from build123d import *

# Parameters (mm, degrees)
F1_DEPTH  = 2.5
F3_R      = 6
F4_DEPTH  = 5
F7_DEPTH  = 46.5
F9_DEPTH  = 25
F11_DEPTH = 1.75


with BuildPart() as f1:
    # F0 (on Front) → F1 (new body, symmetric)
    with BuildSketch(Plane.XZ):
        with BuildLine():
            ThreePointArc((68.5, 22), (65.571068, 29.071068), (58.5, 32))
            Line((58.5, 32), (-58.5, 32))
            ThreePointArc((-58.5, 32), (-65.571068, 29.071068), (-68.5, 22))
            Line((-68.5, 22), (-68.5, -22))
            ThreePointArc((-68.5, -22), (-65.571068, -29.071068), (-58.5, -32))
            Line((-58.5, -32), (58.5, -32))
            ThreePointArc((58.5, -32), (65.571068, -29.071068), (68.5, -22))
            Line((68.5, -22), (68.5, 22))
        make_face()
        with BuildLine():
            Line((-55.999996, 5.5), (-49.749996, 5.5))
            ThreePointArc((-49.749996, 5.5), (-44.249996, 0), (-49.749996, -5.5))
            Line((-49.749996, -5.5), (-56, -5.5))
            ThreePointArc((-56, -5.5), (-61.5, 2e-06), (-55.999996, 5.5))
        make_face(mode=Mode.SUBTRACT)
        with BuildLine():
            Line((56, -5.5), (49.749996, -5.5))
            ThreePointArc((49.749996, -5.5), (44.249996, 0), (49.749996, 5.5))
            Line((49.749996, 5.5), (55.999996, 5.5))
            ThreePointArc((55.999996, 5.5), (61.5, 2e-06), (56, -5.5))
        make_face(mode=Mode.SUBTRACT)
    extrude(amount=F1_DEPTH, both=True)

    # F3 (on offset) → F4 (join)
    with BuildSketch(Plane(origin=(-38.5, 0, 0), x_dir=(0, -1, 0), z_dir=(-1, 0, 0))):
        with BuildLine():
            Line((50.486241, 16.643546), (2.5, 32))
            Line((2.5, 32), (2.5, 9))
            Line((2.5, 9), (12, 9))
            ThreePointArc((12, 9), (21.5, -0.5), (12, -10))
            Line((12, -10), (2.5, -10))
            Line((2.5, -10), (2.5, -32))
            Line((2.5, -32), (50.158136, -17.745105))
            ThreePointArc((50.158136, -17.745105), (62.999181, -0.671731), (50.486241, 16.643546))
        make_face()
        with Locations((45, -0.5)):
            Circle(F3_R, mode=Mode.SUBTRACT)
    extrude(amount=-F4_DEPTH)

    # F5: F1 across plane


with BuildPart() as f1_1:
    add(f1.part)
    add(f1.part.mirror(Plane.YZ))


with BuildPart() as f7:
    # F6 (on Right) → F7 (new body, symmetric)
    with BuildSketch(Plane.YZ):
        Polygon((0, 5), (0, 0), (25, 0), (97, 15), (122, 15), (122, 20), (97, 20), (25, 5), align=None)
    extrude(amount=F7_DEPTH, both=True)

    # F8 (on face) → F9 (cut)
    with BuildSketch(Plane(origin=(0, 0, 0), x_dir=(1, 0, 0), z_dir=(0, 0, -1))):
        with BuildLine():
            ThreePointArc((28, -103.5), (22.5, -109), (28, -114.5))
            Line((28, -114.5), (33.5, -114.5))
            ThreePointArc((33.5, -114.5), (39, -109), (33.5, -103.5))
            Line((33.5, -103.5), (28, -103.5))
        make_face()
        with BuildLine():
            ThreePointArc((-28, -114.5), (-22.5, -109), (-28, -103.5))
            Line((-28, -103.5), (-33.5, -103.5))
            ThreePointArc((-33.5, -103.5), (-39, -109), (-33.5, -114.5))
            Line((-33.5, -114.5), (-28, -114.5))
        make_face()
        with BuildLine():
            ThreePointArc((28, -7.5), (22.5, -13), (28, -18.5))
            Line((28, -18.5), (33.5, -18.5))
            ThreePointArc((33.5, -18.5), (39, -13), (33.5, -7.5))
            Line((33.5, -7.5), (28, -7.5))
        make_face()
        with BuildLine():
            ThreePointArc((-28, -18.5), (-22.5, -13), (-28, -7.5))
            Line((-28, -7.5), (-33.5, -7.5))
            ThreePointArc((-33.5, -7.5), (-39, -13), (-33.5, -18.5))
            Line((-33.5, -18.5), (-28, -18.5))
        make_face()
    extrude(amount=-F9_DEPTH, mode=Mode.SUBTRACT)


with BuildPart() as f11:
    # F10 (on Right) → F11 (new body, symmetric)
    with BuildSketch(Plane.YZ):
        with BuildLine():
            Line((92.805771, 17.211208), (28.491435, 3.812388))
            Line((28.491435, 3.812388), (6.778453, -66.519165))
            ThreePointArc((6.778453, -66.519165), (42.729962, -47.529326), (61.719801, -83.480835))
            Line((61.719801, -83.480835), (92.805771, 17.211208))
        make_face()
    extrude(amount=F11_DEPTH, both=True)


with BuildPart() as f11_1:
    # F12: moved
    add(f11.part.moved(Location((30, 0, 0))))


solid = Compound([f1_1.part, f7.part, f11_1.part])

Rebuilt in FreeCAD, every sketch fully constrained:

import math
import FreeCAD as App
import Part
import Sketcher

V = App.Vector


def add_polygon(sketch, points):
    """Adds a closed chain of lines whose ends are joined by coincident constraints."""
    first, n = sketch.GeometryCount, len(points)
    for a, b in zip(points, points[1:] + points[:1]):
        sketch.addGeometry(Part.LineSegment(App.Vector(*a, 0), App.Vector(*b, 0)), False)
    for i in range(n):
        sketch.addConstraint(Sketcher.Constraint("Coincident", first + i, 2, first + (i + 1) % n, 1))

doc = App.newDocument("Part")
params = doc.addObject("Spreadsheet::Sheet", "Params")
for row, (alias, value) in enumerate([
    ("sketch1_radius", "9.999999 mm"),
    ("sketch1_radius2", "5.5 mm"),
    ("sketch1_width", "117 mm"),
    ("sketch1_height", "44 mm"),
    ("sketch1_width2", "6.25 mm"),
    ("pad1_length", "5 mm"),
    ("sketch2_diameter", "12 mm"),
    ("sketch2_radius", "18 mm"),
    ("sketch2_radius2", "9.5 mm"),
    ("sketch2_height", "23 mm"),
    ("sketch2_height2", "22 mm"),
    ("pad2_length", "5 mm"),
    ("sketch3_width", "25 mm"),
    ("sketch3_height", "5 mm"),
    ("pad3_length", "93 mm"),
    ("sketch4_radius", "5.5 mm"),
    ("sketch4_width", "5.5 mm"),
    ("pocket1_length", "25 mm"),
    ("sketch5_radius", "28.75 mm"),
    ("pad4_length", "3.5 mm"),
], start=1):
    params.set(f"A{row}", alias)
    params.set(f"B{row}", "=" + value)
    params.setAlias(f"B{row}", alias)

body = doc.addObject("PartDesign::Body", "Body")

# Sketch on XZ plane
sketch1 = body.newObject("Sketcher::SketchObject", "Sketch")
sketch1.AttachmentSupport = (doc.getObject("XZ_Plane"), [""])
sketch1.MapMode = "FlatFace"
sketch1.addGeometry(Part.ArcOfCircle(Part.Circle(V(59, 22, 0), V(0, 0, 1), 10), math.radians(0), math.radians(90)), False)
sketch1.addGeometry(Part.LineSegment(V(58, 32, 0), V(-58, 32, 0)), False)
sketch1.addGeometry(Part.ArcOfCircle(Part.Circle(V(-59, 22, 0), V(0, 0, 1), 10), math.radians(90), math.radians(180)), False)
sketch1.addGeometry(Part.LineSegment(V(-68, 22, 0), V(-68, -22, 0)), False)
sketch1.addGeometry(Part.ArcOfCircle(Part.Circle(V(-59, -22, 0), V(0, 0, 1), 10), math.radians(180), math.radians(270)), False)
sketch1.addGeometry(Part.LineSegment(V(-58, -32, 0), V(58, -32, 0)), False)
sketch1.addGeometry(Part.ArcOfCircle(Part.Circle(V(59, -22, 0), V(0, 0, 1), 10), math.radians(-90), math.radians(0)), False)
sketch1.addGeometry(Part.LineSegment(V(68, -22, 0), V(68, 22, 0)), False)
sketch1.addGeometry(Part.ArcOfCircle(Part.Circle(V(-56, 0, 0), V(0, 0, 1), 6), math.radians(90), math.radians(270)), False)
sketch1.addGeometry(Part.LineSegment(V(-56, 6, 0), V(-50, 6, 0)), False)
sketch1.addGeometry(Part.ArcOfCircle(Part.Circle(V(-50, 0, 0), V(0, 0, 1), 6), math.radians(-90), math.radians(90)), False)
sketch1.addGeometry(Part.LineSegment(V(-50, -6, 0), V(-56, -6, 0)), False)
sketch1.addGeometry(Part.ArcOfCircle(Part.Circle(V(56, 0, 0), V(0, 0, 1), 6), math.radians(-90), math.radians(90)), False)
sketch1.addGeometry(Part.LineSegment(V(56, -6, 0), V(50, -6, 0)), False)
sketch1.addGeometry(Part.ArcOfCircle(Part.Circle(V(50, 0, 0), V(0, 0, 1), 6), math.radians(90), math.radians(270)), False)
sketch1.addGeometry(Part.LineSegment(V(50, 6, 0), V(56, 6, 0)), False)
sketch1.addConstraint(Sketcher.Constraint("Tangent", 0, 2, 1, 1))
sketch1.addConstraint(Sketcher.Constraint("Tangent", 1, 2, 2, 1))
sketch1.addConstraint(Sketcher.Constraint("Tangent", 2, 2, 3, 1))
sketch1.addConstraint(Sketcher.Constraint("Tangent", 3, 2, 4, 1))
sketch1.addConstraint(Sketcher.Constraint("Tangent", 4, 2, 5, 1))
sketch1.addConstraint(Sketcher.Constraint("Tangent", 5, 2, 6, 1))
sketch1.addConstraint(Sketcher.Constraint("Tangent", 6, 2, 7, 1))
sketch1.addConstraint(Sketcher.Constraint("Tangent", 7, 2, 0, 1))
sketch1.addConstraint(Sketcher.Constraint("Tangent", 8, 1, 9, 1))
sketch1.addConstraint(Sketcher.Constraint("Tangent", 9, 2, 10, 2))
sketch1.addConstraint(Sketcher.Constraint("Tangent", 10, 1, 11, 1))
sketch1.addConstraint(Sketcher.Constraint("Tangent", 11, 2, 8, 2))
sketch1.addConstraint(Sketcher.Constraint("Tangent", 12, 1, 13, 1))
sketch1.addConstraint(Sketcher.Constraint("Tangent", 13, 2, 14, 2))
sketch1.addConstraint(Sketcher.Constraint("Tangent", 14, 1, 15, 1))
sketch1.addConstraint(Sketcher.Constraint("Tangent", 15, 2, 12, 2))
sketch1.addConstraint(Sketcher.Constraint("Horizontal", 1))
sketch1.addConstraint(Sketcher.Constraint("Vertical", 3))
sketch1.addConstraint(Sketcher.Constraint("Horizontal", 5))
sketch1.addConstraint(Sketcher.Constraint("Vertical", 7))
sketch1.addConstraint(Sketcher.Constraint("Horizontal", 9))
sketch1.addConstraint(Sketcher.Constraint("Horizontal", 11))
sketch1.addConstraint(Sketcher.Constraint("Horizontal", 13))
sketch1.addConstraint(Sketcher.Constraint("Horizontal", 15))
sketch1.addConstraint(Sketcher.Constraint("Equal", 0, 2))
sketch1.addConstraint(Sketcher.Constraint("Equal", 2, 4))
sketch1.addConstraint(Sketcher.Constraint("Equal", 4, 6))
sketch1.addConstraint(Sketcher.Constraint("Equal", 10, 12))
sketch1.addConstraint(Sketcher.Constraint("Symmetric", 0, 3, 4, 3, -1, 1))
sketch1.addConstraint(Sketcher.Constraint("Symmetric", 8, 3, 12, 3, -1, 1))
sketch1.addConstraint(Sketcher.Constraint("Symmetric", 10, 3, 14, 3, -2))
sketch1.addConstraint(Sketcher.Constraint("Radius", 0, 9.999999))
sketch1.addConstraint(Sketcher.Constraint("Radius", 8, 5.5))
sketch1.addConstraint(Sketcher.Constraint("DistanceX", 1, 2, 1, 1, 117.0))
sketch1.addConstraint(Sketcher.Constraint("DistanceY", 3, 2, 3, 1, 44.0))
sketch1.addConstraint(Sketcher.Constraint("DistanceX", 8, 3, -1, 1, 56.0))
sketch1.addConstraint(Sketcher.Constraint("DistanceX", 9, 1, 9, 2, 6.25))
sketch1.setExpression("Constraints[31]", "Params.sketch1_radius")
sketch1.setExpression("Constraints[32]", "Params.sketch1_radius2")
sketch1.setExpression("Constraints[33]", "Params.sketch1_width")
sketch1.setExpression("Constraints[34]", "Params.sketch1_height")
sketch1.setExpression("Constraints[36]", "Params.sketch1_width2")
pad1 = body.newObject("PartDesign::Pad", "Pad")
pad1.Profile = sketch1
pad1.setExpression("Length", "Params.pad1_length")
pad1.Midplane = True

# Sketch on YZ plane
sketch2 = body.newObject("Sketcher::SketchObject", "Sketch001")
sketch2.AttachmentSupport = (doc.getObject("YZ_Plane"), [""])
sketch2.MapMode = "FlatFace"
sketch2.AttachmentOffset = App.Placement(V(0, 0, -38.5), App.Rotation())
sketch2.addGeometry(Part.LineSegment(V(-50, 17, 0), V(-2, 32, 0)), False)
sketch2.addGeometry(Part.LineSegment(V(-2, 32, 0), V(-2, 9, 0)), False)
sketch2.addGeometry(Part.LineSegment(V(-2, 9, 0), V(-12, 9, 0)), False)
sketch2.addGeometry(Part.ArcOfCircle(Part.Circle(V(-12, 0, 0), V(0, 0, 1), 10), math.radians(90), math.radians(270)), False)
sketch2.addGeometry(Part.LineSegment(V(-12, -10, 0), V(-2, -10, 0)), False)
sketch2.addGeometry(Part.LineSegment(V(-2, -10, 0), V(-2, -32, 0)), False)
sketch2.addGeometry(Part.LineSegment(V(-2, -32, 0), V(-50, -18, 0)), False)
sketch2.addGeometry(Part.ArcOfCircle(Part.Circle(V(-45, -1, 0), V(0, 0, 1), 18), math.radians(108), math.radians(253)), False)
sketch2.addGeometry(Part.Circle(V(-45, 0, 0), V(0, 0, 1), 6), False)
sketch2.addConstraint(Sketcher.Constraint("Coincident", 0, 2, 1, 1))
sketch2.addConstraint(Sketcher.Constraint("Coincident", 1, 2, 2, 1))
sketch2.addConstraint(Sketcher.Constraint("Tangent", 2, 2, 3, 1))
sketch2.addConstraint(Sketcher.Constraint("Tangent", 3, 2, 4, 1))
sketch2.addConstraint(Sketcher.Constraint("Coincident", 4, 2, 5, 1))
sketch2.addConstraint(Sketcher.Constraint("Coincident", 5, 2, 6, 1))
sketch2.addConstraint(Sketcher.Constraint("Tangent", 6, 2, 7, 2))
sketch2.addConstraint(Sketcher.Constraint("Tangent", 7, 1, 0, 1))
sketch2.addConstraint(Sketcher.Constraint("Vertical", 1))
sketch2.addConstraint(Sketcher.Constraint("Horizontal", 2))
sketch2.addConstraint(Sketcher.Constraint("Horizontal", 4))
sketch2.addConstraint(Sketcher.Constraint("Vertical", 5))
sketch2.addConstraint(Sketcher.Constraint("Coincident", 8, 3, 7, 3))
sketch2.addConstraint(Sketcher.Constraint("Symmetric", 0, 2, 5, 2, -1))
sketch2.addConstraint(Sketcher.Constraint("Horizontal", 3, 3, 7, 3))
sketch2.addConstraint(Sketcher.Constraint("Diameter", 8, 12.0))
sketch2.addConstraint(Sketcher.Constraint("Radius", 7, 18.0))
sketch2.addConstraint(Sketcher.Constraint("Radius", 3, 9.5))
sketch2.addConstraint(Sketcher.Constraint("DistanceY", 1, 2, 1, 1, 23.0))
sketch2.addConstraint(Sketcher.Constraint("DistanceY", 5, 2, 5, 1, 22.0))
sketch2.addConstraint(Sketcher.Constraint("DistanceX", 2, 2, 2, 1, 9.5))
sketch2.addConstraint(Sketcher.Constraint("DistanceX", 3, 3, -1, 1, 12.0))
sketch2.addConstraint(Sketcher.Constraint("DistanceX", 7, 3, -1, 1, 45.0))
sketch2.setExpression("Constraints[15]", "Params.sketch2_diameter")
sketch2.setExpression("Constraints[16]", "Params.sketch2_radius")
sketch2.setExpression("Constraints[17]", "Params.sketch2_radius2")
sketch2.setExpression("Constraints[18]", "Params.sketch2_height")
sketch2.setExpression("Constraints[19]", "Params.sketch2_height2")
pad2 = body.newObject("PartDesign::Pad", "Pad001")
pad2.Profile = sketch2
pad2.setExpression("Length", "Params.pad2_length")
body2 = doc.addObject("PartDesign::Body", "Body001")
doc.recompute()

body2.BaseFeature = body
doc.recompute()

mirroring = doc.addObject("Part::Mirroring", "Mirroring")
mirroring.Source = body
mirroring.Base = V(0, 0, 0)
mirroring.Normal = V(1, 0, 0)
body3 = doc.addObject("PartDesign::Body", "Body002")
body3.BaseFeature = mirroring
boolean = body2.newObject("PartDesign::Boolean", "Boolean")
boolean.Type = "Fuse"
boolean.addObjects([body3])
doc.recompute()
body4 = doc.addObject("PartDesign::Body", "Body003")

# Sketch on YZ plane
sketch3 = body4.newObject("Sketcher::SketchObject", "Sketch002")
sketch3.AttachmentSupport = (doc.getObject("YZ_Plane003"), [""])
sketch3.MapMode = "FlatFace"
add_polygon(sketch3, [(0, 5), (0, 0), (25, 0), (97, 15), (122, 15), (122, 20), (97, 20), (25, 5)])  # lines 0-7
sketch3.addConstraint(Sketcher.Constraint("Vertical", 0))
sketch3.addConstraint(Sketcher.Constraint("Horizontal", 1))
sketch3.addConstraint(Sketcher.Constraint("Horizontal", 3))
sketch3.addConstraint(Sketcher.Constraint("Vertical", 4))
sketch3.addConstraint(Sketcher.Constraint("Horizontal", 5))
sketch3.addConstraint(Sketcher.Constraint("Horizontal", 7))
sketch3.addConstraint(Sketcher.Constraint("Coincident", 0, 2, -1, 1))
sketch3.addConstraint(Sketcher.Constraint("Parallel", 2, 6))
sketch3.addConstraint(Sketcher.Constraint("Vertical", 2, 2, 5, 2))
sketch3.addConstraint(Sketcher.Constraint("Vertical", 1, 2, 6, 2))
sketch3.addConstraint(Sketcher.Constraint("Equal", 1, 3))
sketch3.addConstraint(Sketcher.Constraint("DistanceX", 1, 1, 1, 2, 25.0))
sketch3.addConstraint(Sketcher.Constraint("DistanceY", 0, 2, 0, 1, 5.0))
sketch3.addConstraint(Sketcher.Constraint("DistanceX", -1, 1, 2, 2, 97.0))
sketch3.addConstraint(Sketcher.Constraint("DistanceY", -1, 1, 2, 2, 15.0))
sketch3.setExpression("Constraints[19]", "Params.sketch3_width")
sketch3.setExpression("Constraints[20]", "Params.sketch3_height")
pad3 = body4.newObject("PartDesign::Pad", "Pad002")
pad3.Profile = sketch3
pad3.setExpression("Length", "Params.pad3_length")
pad3.Midplane = True

# Sketch on XY plane
sketch4 = body4.newObject("Sketcher::SketchObject", "Sketch003")
sketch4.AttachmentSupport = (doc.getObject("XY_Plane003"), [""])
sketch4.MapMode = "FlatFace"
sketch4.addGeometry(Part.ArcOfCircle(Part.Circle(V(28, 109, 0), V(0, 0, 1), 6), math.radians(90), math.radians(270)), False)
sketch4.addGeometry(Part.LineSegment(V(28, 114, 0), V(34, 114, 0)), False)
sketch4.addGeometry(Part.ArcOfCircle(Part.Circle(V(34, 109, 0), V(0, 0, 1), 6), math.radians(-90), math.radians(90)), False)
sketch4.addGeometry(Part.LineSegment(V(34, 104, 0), V(28, 104, 0)), False)
sketch4.addGeometry(Part.ArcOfCircle(Part.Circle(V(-28, 109, 0), V(0, 0, 1), 6), math.radians(-90), math.radians(90)), False)
sketch4.addGeometry(Part.LineSegment(V(-28, 104, 0), V(-34, 104, 0)), False)
sketch4.addGeometry(Part.ArcOfCircle(Part.Circle(V(-34, 109, 0), V(0, 0, 1), 6), math.radians(90), math.radians(270)), False)
sketch4.addGeometry(Part.LineSegment(V(-34, 114, 0), V(-28, 114, 0)), False)
sketch4.addGeometry(Part.ArcOfCircle(Part.Circle(V(28, 13, 0), V(0, 0, 1), 6), math.radians(90), math.radians(270)), False)
sketch4.addGeometry(Part.LineSegment(V(28, 18, 0), V(34, 18, 0)), False)
sketch4.addGeometry(Part.ArcOfCircle(Part.Circle(V(34, 13, 0), V(0, 0, 1), 6), math.radians(-90), math.radians(90)), False)
sketch4.addGeometry(Part.LineSegment(V(34, 8, 0), V(28, 8, 0)), False)
sketch4.addGeometry(Part.ArcOfCircle(Part.Circle(V(-28, 13, 0), V(0, 0, 1), 6), math.radians(-90), math.radians(90)), False)
sketch4.addGeometry(Part.LineSegment(V(-28, 8, 0), V(-34, 8, 0)), False)
sketch4.addGeometry(Part.ArcOfCircle(Part.Circle(V(-34, 13, 0), V(0, 0, 1), 6), math.radians(90), math.radians(270)), False)
sketch4.addGeometry(Part.LineSegment(V(-34, 18, 0), V(-28, 18, 0)), False)
sketch4.addConstraint(Sketcher.Constraint("Tangent", 0, 1, 1, 1))
sketch4.addConstraint(Sketcher.Constraint("Tangent", 1, 2, 2, 2))
sketch4.addConstraint(Sketcher.Constraint("Tangent", 2, 1, 3, 1))
sketch4.addConstraint(Sketcher.Constraint("Tangent", 3, 2, 0, 2))
sketch4.addConstraint(Sketcher.Constraint("Tangent", 4, 1, 5, 1))
sketch4.addConstraint(Sketcher.Constraint("Tangent", 5, 2, 6, 2))
sketch4.addConstraint(Sketcher.Constraint("Tangent", 6, 1, 7, 1))
sketch4.addConstraint(Sketcher.Constraint("Tangent", 7, 2, 4, 2))
sketch4.addConstraint(Sketcher.Constraint("Tangent", 8, 1, 9, 1))
sketch4.addConstraint(Sketcher.Constraint("Tangent", 9, 2, 10, 2))
sketch4.addConstraint(Sketcher.Constraint("Tangent", 10, 1, 11, 1))
sketch4.addConstraint(Sketcher.Constraint("Tangent", 11, 2, 8, 2))
sketch4.addConstraint(Sketcher.Constraint("Tangent", 12, 1, 13, 1))
sketch4.addConstraint(Sketcher.Constraint("Tangent", 13, 2, 14, 2))
sketch4.addConstraint(Sketcher.Constraint("Tangent", 14, 1, 15, 1))
sketch4.addConstraint(Sketcher.Constraint("Tangent", 15, 2, 12, 2))
sketch4.addConstraint(Sketcher.Constraint("Horizontal", 1))
sketch4.addConstraint(Sketcher.Constraint("Horizontal", 3))
sketch4.addConstraint(Sketcher.Constraint("Horizontal", 5))
sketch4.addConstraint(Sketcher.Constraint("Horizontal", 7))
sketch4.addConstraint(Sketcher.Constraint("Horizontal", 9))
sketch4.addConstraint(Sketcher.Constraint("Horizontal", 11))
sketch4.addConstraint(Sketcher.Constraint("Horizontal", 13))
sketch4.addConstraint(Sketcher.Constraint("Horizontal", 15))
sketch4.addConstraint(Sketcher.Constraint("Equal", 2, 4))
sketch4.addConstraint(Sketcher.Constraint("Equal", 6, 8))
sketch4.addConstraint(Sketcher.Constraint("Equal", 10, 12))
sketch4.addConstraint(Sketcher.Constraint("Symmetric", 0, 3, 4, 3, -2))
sketch4.addConstraint(Sketcher.Constraint("Symmetric", 8, 3, 12, 3, -2))
sketch4.addConstraint(Sketcher.Constraint("Vertical", 0, 3, 8, 3))
sketch4.addConstraint(Sketcher.Constraint("Vertical", 2, 3, 10, 3))
sketch4.addConstraint(Sketcher.Constraint("Vertical", 6, 3, 14, 3))
sketch4.addConstraint(Sketcher.Constraint("Equal", 3, 5))
sketch4.addConstraint(Sketcher.Constraint("Radius", 0, 5.5))
sketch4.addConstraint(Sketcher.Constraint("DistanceX", 1, 1, 1, 2, 5.5))
sketch4.addConstraint(Sketcher.Constraint("DistanceX", -1, 1, 0, 3, 28.0))
sketch4.addConstraint(Sketcher.Constraint("DistanceY", -1, 1, 0, 3, 109.0))
sketch4.addConstraint(Sketcher.Constraint("DistanceY", -1, 1, 8, 3, 13.0))
sketch4.setExpression("Constraints[33]", "Params.sketch4_radius")
sketch4.setExpression("Constraints[34]", "Params.sketch4_width")
pocket1 = body4.newObject("PartDesign::Pocket", "Pocket")
pocket1.Profile = sketch4
pocket1.setExpression("Length", "Params.pocket1_length")
pocket1.Reversed = True
body5 = doc.addObject("PartDesign::Body", "Body004")

# Sketch on YZ plane
sketch5 = body5.newObject("Sketcher::SketchObject", "Sketch004")
sketch5.AttachmentSupport = (doc.getObject("YZ_Plane004"), [""])
sketch5.MapMode = "FlatFace"
sketch5.addGeometry(Part.LineSegment(V(93, 17, 0), V(28, 4, 0)), False)
sketch5.addGeometry(Part.LineSegment(V(28, 4, 0), V(7, -67, 0)), False)
sketch5.addGeometry(Part.ArcOfCircle(Part.Circle(V(34, -75, 0), V(0, 0, 1), 29), math.radians(-17), math.radians(163)), False)
sketch5.addGeometry(Part.LineSegment(V(62, -83, 0), V(93, 17, 0)), False)
sketch5.addConstraint(Sketcher.Constraint("Coincident", 0, 2, 1, 1))
sketch5.addConstraint(Sketcher.Constraint("Tangent", 1, 2, 2, 2))
sketch5.addConstraint(Sketcher.Constraint("Tangent", 2, 1, 3, 1))
sketch5.addConstraint(Sketcher.Constraint("Coincident", 3, 2, 0, 1))
sketch5.addConstraint(Sketcher.Constraint("Parallel", 1, 3))
sketch5.addConstraint(Sketcher.Constraint("Radius", 2, 28.75))
sketch5.addConstraint(Sketcher.Constraint("DistanceY", 2, 3, -1, 1, 75.0))
sketch5.addConstraint(Sketcher.Constraint("DistanceX", -1, 1, 2, 1, 61.719801))
sketch5.addConstraint(Sketcher.Constraint("Distance", 0, 65.695222))
sketch5.addConstraint(Sketcher.Constraint("Distance", 3, 105.381332))
sketch5.addConstraint(Sketcher.Constraint("DistanceX", -1, 1, 3, 2, 92.805771))
sketch5.setExpression("Constraints[5]", "Params.sketch5_radius")
pad4 = body5.newObject("PartDesign::Pad", "Pad003")
pad4.Profile = sketch5
pad4.setExpression("Length", "Params.pad4_length")
pad4.Midplane = True
body6 = doc.addObject("PartDesign::Body", "Body005")
doc.recompute()

body5.Placement = App.Placement(V(30, 0, 0), App.Rotation(V(0, 0, 1), 0))
boolean2 = body6.newObject("PartDesign::Boolean", "Boolean001")
boolean2.Type = "Fuse"
boolean2.addObjects([body5])
mirroring.Visibility = False

doc.recompute()
